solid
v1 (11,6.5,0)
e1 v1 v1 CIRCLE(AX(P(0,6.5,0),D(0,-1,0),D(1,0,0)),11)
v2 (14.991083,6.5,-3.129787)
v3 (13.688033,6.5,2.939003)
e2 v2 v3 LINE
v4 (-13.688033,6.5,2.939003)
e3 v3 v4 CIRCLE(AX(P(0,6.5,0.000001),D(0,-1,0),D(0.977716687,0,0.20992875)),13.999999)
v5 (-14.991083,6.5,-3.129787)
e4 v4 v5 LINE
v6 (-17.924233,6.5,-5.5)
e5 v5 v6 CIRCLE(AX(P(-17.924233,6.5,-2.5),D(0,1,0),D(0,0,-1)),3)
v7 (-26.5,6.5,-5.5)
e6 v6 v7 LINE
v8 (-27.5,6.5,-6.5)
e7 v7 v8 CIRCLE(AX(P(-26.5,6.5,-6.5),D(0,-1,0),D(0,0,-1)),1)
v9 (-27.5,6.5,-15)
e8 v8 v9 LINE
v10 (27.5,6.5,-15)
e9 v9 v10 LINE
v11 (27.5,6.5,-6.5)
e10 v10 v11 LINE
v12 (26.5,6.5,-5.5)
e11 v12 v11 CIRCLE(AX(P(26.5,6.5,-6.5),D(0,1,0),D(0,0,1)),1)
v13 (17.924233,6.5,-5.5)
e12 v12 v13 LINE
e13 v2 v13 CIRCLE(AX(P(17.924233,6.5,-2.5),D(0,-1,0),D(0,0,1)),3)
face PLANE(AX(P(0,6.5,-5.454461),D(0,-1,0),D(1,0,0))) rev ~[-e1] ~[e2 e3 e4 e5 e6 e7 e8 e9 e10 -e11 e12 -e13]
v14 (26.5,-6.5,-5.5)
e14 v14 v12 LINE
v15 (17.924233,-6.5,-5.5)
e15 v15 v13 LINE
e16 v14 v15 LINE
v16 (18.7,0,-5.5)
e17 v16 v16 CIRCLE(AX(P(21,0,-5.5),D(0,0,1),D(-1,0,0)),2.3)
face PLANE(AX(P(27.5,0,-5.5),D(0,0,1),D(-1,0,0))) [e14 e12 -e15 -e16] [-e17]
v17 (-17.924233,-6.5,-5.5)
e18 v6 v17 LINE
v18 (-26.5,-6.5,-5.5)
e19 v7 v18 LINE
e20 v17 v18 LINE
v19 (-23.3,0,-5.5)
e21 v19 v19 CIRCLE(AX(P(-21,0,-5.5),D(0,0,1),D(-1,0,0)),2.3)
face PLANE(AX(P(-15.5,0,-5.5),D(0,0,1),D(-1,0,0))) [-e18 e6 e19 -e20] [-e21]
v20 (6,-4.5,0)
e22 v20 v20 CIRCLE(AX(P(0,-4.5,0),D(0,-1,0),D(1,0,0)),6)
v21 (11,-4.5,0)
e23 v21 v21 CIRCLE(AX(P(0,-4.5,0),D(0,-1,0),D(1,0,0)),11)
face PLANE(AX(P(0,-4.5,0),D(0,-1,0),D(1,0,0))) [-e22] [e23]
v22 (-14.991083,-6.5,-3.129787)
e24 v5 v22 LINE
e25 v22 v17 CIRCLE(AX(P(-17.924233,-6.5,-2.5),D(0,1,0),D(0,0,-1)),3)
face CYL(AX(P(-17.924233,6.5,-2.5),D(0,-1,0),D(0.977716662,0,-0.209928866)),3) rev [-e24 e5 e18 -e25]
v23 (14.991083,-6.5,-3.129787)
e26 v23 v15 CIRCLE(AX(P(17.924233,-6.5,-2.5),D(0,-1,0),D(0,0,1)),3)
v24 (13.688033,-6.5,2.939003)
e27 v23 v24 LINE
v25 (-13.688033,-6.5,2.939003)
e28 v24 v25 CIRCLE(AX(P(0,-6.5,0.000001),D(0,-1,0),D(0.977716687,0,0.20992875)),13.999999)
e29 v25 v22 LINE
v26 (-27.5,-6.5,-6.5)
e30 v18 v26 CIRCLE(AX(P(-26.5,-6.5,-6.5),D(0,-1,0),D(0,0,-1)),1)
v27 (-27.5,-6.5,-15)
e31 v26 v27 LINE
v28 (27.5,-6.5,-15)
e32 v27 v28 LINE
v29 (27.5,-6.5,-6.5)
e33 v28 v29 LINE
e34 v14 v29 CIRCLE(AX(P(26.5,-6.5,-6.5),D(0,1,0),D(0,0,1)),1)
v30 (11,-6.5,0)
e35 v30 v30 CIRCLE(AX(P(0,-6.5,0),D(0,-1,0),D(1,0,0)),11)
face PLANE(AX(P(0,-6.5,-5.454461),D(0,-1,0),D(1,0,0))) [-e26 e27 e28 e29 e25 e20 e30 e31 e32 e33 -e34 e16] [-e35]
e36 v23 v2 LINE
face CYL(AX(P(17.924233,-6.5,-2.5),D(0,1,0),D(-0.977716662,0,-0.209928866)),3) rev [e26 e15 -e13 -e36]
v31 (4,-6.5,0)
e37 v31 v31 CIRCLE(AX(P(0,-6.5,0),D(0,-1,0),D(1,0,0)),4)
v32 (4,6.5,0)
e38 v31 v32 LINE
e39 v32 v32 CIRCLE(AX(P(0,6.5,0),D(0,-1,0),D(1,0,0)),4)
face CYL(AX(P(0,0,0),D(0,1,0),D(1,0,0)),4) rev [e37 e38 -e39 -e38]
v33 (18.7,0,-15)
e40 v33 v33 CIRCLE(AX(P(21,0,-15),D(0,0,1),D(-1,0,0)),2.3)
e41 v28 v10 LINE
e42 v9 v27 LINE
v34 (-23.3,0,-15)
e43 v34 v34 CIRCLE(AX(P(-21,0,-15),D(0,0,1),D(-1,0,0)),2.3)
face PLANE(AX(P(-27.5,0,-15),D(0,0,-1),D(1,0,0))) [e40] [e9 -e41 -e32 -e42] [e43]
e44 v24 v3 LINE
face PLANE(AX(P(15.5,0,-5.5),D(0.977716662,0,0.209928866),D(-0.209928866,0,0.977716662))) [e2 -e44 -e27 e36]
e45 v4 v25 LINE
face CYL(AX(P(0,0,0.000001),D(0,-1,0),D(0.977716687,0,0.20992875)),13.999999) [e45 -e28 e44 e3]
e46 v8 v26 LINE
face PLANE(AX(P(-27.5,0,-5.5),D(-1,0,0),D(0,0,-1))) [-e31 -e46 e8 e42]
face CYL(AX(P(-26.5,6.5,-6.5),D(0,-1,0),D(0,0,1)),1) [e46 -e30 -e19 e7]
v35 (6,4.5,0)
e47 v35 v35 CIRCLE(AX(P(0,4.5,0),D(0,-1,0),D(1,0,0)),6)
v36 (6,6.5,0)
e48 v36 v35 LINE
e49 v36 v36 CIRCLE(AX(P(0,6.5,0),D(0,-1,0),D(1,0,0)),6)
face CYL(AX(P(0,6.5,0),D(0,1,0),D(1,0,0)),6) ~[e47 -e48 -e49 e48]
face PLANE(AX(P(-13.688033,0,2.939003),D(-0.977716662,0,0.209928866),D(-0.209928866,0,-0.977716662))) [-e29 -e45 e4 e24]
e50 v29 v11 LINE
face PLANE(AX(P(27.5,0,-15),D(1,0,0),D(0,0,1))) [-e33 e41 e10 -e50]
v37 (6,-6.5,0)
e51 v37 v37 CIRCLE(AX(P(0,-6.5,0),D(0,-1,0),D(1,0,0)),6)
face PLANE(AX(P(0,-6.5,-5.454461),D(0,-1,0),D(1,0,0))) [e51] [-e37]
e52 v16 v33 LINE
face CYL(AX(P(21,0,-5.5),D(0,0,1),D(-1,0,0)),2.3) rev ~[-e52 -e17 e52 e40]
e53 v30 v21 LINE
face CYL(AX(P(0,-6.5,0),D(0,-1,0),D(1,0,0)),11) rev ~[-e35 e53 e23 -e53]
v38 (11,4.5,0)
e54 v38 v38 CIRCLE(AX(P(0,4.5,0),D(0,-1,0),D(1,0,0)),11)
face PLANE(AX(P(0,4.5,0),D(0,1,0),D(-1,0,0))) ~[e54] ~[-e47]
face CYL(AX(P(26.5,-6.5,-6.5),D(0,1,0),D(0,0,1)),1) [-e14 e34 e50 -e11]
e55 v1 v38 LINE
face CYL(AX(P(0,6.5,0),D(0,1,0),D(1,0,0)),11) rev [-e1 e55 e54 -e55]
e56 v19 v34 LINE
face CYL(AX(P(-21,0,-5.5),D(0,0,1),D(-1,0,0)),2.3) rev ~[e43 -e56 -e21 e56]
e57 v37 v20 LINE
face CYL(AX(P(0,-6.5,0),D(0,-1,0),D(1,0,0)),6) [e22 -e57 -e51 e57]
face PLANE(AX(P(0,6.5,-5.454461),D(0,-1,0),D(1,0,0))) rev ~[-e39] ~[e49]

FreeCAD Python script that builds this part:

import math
import FreeCAD as App
import Part
import Sketcher


def edges_at(feature, points):
    """Names of the edges that pass closest to the given points."""
    edges = feature.Shape.Edges
    near = lambda p: min(range(len(edges)), key=lambda i: edges[i].distToShape(Part.Vertex(*p))[0])
    return sorted({f"Edge{near(p) + 1}" for p in points})

doc = App.newDocument("Part")
body = doc.addObject("PartDesign::Body", "Body")

sketch1 = body.newObject("Sketcher::SketchObject", "Sketch")
sketch1.AttachmentSupport = (doc.getObject("XZ_Plane"), [""])
sketch1.MapMode = "FlatFace"
sketch1.addGeometry([
    Part.ArcOfCircle(Part.Circle(App.Vector(0, 0.000001, 0), App.Vector(0, 0, 1), 13.999999), math.radians(12.118177), math.radians(167.881823)),
    Part.LineSegment(App.Vector(-13.688033, 2.939003, 0), App.Vector(-15.5, -5.5, 0)),
    Part.LineSegment(App.Vector(-15.5, -5.5, 0), App.Vector(-27.5, -5.5, 0)),
    Part.LineSegment(App.Vector(-27.5, -5.5, 0), App.Vector(-27.5, -15, 0)),
    Part.LineSegment(App.Vector(-27.5, -15, 0), App.Vector(27.5, -15, 0)),
    Part.LineSegment(App.Vector(27.5, -15, 0), App.Vector(27.5, -5.5, 0)),
    Part.LineSegment(App.Vector(27.5, -5.5, 0), App.Vector(15.5, -5.5, 0)),
    Part.LineSegment(App.Vector(15.5, -5.5, 0), App.Vector(13.688033, 2.939003, 0)),
    Part.Circle(App.Vector(0, 0, 0), App.Vector(0, 0, 1), 4),
], False)
sketch1.addConstraint([
    Sketcher.Constraint("Tangent", 0, 2, 1, 1),
    Sketcher.Constraint("Coincident", 1, 2, 2, 1),
    Sketcher.Constraint("Coincident", 2, 2, 3, 1),
    Sketcher.Constraint("Coincident", 3, 2, 4, 1),
    Sketcher.Constraint("Coincident", 4, 2, 5, 1),
    Sketcher.Constraint("Coincident", 5, 2, 6, 1),
    Sketcher.Constraint("Coincident", 6, 2, 7, 1),
    Sketcher.Constraint("Tangent", 7, 2, 0, 1),
    Sketcher.Constraint("Horizontal", 2),
    Sketcher.Constraint("Vertical", 3),
    Sketcher.Constraint("Horizontal", 4),
    Sketcher.Constraint("Vertical", 5),
    Sketcher.Constraint("Horizontal", 6),
    Sketcher.Constraint("Coincident", 0, 3, -1, 1),
    Sketcher.Constraint("Coincident", 8, 3, -1, 1),
    Sketcher.Constraint("Symmetric", 2, 2, 5, 2, -2),
    Sketcher.Constraint("Horizontal", 0, 2, 7, 2),
    Sketcher.Constraint("Diameter", 8, 8.0),
    Sketcher.Constraint("Radius", 0, 13.999999),
    Sketcher.Constraint("DistanceX", 2, 2, 2, 1, 12.0),
    Sketcher.Constraint("DistanceX", 4, 1, 4, 2, 55.0),
    Sketcher.Constraint("DistanceY", 3, 2, 3, 1, 9.5),
    Sketcher.Constraint("DistanceY", 3, 2, -1, 1, 15.0),
])
pad1 = body.newObject("PartDesign::Pad", "Pad")
pad1.Profile = sketch1
pad1.Length = 13
pad1.Midplane = True

sketch2 = body.newObject("Sketcher::SketchObject", "Sketch001")
sketch2.AttachmentSupport = (doc.getObject("XZ_Plane"), [""])
sketch2.MapMode = "FlatFace"
sketch2.AttachmentOffset = App.Placement(App.Vector(0, 0, 6.5), App.Rotation())
sketch2.addGeometry([
    Part.Circle(App.Vector(0, 0, 0), App.Vector(0, 0, 1), 11),
    Part.Circle(App.Vector(0, 0, 0), App.Vector(0, 0, 1), 6),
], False)
sketch2.addConstraint([
    Sketcher.Constraint("Coincident", 0, 3, -1, 1),
    Sketcher.Constraint("Coincident", 1, 3, -1, 1),
    Sketcher.Constraint("Diameter", 0, 22.0),
    Sketcher.Constraint("Diameter", 1, 12.0),
])
pocket1 = body.newObject("PartDesign::Pocket", "Pocket")
pocket1.Profile = sketch2
pocket1.Length = 2
doc.recompute()

mirrored = body.newObject("PartDesign::Mirrored", "Mirrored")
mirrored.Originals = [pocket1]
mirrored.MirrorPlane = (doc.getObject("XZ_Plane"), [""])
body.Tip = mirrored
doc.recompute()

fillet = body.newObject("PartDesign::Fillet", "Fillet")
fillet.Base = (mirrored, edges_at(mirrored, [(15.5, 0, -5.5), (-15.5, 0, -5.5)]))
fillet.Radius = 3
doc.recompute()

fillet2 = body.newObject("PartDesign::Fillet", "Fillet001")
fillet2.Base = (fillet, edges_at(fillet, [(-27.5, 0, -5.5), (27.5, 0, -5.5)]))
fillet2.Radius = 1

sketch3 = body.newObject("Sketcher::SketchObject", "Sketch002")
sketch3.AttachmentSupport = (doc.getObject("XY_Plane"), [""])
sketch3.MapMode = "FlatFace"
sketch3.AttachmentOffset = App.Placement(App.Vector(0, 0, -5.5), App.Rotation())
sketch3.addGeometry([
    Part.Circle(App.Vector(21, 0, 0), App.Vector(0, 0, 1), 2.3),
    Part.Circle(App.Vector(-21, 0, 0), App.Vector(0, 0, 1), 2.3),
], False)
sketch3.addConstraint([
    Sketcher.Constraint("Equal", 0, 1),
    Sketcher.Constraint("Symmetric", 0, 3, 1, 3, -1, 1),
    Sketcher.Constraint("PointOnObject", 0, 3, -1),
    Sketcher.Constraint("Diameter", 0, 4.6),
    Sketcher.Constraint("DistanceX", -1, 1, 0, 3, 21.0),
])
pocket2 = body.newObject("PartDesign::Pocket", "Pocket001")
pocket2.Profile = sketch3
pocket2.Length = 25

doc.recompute()
